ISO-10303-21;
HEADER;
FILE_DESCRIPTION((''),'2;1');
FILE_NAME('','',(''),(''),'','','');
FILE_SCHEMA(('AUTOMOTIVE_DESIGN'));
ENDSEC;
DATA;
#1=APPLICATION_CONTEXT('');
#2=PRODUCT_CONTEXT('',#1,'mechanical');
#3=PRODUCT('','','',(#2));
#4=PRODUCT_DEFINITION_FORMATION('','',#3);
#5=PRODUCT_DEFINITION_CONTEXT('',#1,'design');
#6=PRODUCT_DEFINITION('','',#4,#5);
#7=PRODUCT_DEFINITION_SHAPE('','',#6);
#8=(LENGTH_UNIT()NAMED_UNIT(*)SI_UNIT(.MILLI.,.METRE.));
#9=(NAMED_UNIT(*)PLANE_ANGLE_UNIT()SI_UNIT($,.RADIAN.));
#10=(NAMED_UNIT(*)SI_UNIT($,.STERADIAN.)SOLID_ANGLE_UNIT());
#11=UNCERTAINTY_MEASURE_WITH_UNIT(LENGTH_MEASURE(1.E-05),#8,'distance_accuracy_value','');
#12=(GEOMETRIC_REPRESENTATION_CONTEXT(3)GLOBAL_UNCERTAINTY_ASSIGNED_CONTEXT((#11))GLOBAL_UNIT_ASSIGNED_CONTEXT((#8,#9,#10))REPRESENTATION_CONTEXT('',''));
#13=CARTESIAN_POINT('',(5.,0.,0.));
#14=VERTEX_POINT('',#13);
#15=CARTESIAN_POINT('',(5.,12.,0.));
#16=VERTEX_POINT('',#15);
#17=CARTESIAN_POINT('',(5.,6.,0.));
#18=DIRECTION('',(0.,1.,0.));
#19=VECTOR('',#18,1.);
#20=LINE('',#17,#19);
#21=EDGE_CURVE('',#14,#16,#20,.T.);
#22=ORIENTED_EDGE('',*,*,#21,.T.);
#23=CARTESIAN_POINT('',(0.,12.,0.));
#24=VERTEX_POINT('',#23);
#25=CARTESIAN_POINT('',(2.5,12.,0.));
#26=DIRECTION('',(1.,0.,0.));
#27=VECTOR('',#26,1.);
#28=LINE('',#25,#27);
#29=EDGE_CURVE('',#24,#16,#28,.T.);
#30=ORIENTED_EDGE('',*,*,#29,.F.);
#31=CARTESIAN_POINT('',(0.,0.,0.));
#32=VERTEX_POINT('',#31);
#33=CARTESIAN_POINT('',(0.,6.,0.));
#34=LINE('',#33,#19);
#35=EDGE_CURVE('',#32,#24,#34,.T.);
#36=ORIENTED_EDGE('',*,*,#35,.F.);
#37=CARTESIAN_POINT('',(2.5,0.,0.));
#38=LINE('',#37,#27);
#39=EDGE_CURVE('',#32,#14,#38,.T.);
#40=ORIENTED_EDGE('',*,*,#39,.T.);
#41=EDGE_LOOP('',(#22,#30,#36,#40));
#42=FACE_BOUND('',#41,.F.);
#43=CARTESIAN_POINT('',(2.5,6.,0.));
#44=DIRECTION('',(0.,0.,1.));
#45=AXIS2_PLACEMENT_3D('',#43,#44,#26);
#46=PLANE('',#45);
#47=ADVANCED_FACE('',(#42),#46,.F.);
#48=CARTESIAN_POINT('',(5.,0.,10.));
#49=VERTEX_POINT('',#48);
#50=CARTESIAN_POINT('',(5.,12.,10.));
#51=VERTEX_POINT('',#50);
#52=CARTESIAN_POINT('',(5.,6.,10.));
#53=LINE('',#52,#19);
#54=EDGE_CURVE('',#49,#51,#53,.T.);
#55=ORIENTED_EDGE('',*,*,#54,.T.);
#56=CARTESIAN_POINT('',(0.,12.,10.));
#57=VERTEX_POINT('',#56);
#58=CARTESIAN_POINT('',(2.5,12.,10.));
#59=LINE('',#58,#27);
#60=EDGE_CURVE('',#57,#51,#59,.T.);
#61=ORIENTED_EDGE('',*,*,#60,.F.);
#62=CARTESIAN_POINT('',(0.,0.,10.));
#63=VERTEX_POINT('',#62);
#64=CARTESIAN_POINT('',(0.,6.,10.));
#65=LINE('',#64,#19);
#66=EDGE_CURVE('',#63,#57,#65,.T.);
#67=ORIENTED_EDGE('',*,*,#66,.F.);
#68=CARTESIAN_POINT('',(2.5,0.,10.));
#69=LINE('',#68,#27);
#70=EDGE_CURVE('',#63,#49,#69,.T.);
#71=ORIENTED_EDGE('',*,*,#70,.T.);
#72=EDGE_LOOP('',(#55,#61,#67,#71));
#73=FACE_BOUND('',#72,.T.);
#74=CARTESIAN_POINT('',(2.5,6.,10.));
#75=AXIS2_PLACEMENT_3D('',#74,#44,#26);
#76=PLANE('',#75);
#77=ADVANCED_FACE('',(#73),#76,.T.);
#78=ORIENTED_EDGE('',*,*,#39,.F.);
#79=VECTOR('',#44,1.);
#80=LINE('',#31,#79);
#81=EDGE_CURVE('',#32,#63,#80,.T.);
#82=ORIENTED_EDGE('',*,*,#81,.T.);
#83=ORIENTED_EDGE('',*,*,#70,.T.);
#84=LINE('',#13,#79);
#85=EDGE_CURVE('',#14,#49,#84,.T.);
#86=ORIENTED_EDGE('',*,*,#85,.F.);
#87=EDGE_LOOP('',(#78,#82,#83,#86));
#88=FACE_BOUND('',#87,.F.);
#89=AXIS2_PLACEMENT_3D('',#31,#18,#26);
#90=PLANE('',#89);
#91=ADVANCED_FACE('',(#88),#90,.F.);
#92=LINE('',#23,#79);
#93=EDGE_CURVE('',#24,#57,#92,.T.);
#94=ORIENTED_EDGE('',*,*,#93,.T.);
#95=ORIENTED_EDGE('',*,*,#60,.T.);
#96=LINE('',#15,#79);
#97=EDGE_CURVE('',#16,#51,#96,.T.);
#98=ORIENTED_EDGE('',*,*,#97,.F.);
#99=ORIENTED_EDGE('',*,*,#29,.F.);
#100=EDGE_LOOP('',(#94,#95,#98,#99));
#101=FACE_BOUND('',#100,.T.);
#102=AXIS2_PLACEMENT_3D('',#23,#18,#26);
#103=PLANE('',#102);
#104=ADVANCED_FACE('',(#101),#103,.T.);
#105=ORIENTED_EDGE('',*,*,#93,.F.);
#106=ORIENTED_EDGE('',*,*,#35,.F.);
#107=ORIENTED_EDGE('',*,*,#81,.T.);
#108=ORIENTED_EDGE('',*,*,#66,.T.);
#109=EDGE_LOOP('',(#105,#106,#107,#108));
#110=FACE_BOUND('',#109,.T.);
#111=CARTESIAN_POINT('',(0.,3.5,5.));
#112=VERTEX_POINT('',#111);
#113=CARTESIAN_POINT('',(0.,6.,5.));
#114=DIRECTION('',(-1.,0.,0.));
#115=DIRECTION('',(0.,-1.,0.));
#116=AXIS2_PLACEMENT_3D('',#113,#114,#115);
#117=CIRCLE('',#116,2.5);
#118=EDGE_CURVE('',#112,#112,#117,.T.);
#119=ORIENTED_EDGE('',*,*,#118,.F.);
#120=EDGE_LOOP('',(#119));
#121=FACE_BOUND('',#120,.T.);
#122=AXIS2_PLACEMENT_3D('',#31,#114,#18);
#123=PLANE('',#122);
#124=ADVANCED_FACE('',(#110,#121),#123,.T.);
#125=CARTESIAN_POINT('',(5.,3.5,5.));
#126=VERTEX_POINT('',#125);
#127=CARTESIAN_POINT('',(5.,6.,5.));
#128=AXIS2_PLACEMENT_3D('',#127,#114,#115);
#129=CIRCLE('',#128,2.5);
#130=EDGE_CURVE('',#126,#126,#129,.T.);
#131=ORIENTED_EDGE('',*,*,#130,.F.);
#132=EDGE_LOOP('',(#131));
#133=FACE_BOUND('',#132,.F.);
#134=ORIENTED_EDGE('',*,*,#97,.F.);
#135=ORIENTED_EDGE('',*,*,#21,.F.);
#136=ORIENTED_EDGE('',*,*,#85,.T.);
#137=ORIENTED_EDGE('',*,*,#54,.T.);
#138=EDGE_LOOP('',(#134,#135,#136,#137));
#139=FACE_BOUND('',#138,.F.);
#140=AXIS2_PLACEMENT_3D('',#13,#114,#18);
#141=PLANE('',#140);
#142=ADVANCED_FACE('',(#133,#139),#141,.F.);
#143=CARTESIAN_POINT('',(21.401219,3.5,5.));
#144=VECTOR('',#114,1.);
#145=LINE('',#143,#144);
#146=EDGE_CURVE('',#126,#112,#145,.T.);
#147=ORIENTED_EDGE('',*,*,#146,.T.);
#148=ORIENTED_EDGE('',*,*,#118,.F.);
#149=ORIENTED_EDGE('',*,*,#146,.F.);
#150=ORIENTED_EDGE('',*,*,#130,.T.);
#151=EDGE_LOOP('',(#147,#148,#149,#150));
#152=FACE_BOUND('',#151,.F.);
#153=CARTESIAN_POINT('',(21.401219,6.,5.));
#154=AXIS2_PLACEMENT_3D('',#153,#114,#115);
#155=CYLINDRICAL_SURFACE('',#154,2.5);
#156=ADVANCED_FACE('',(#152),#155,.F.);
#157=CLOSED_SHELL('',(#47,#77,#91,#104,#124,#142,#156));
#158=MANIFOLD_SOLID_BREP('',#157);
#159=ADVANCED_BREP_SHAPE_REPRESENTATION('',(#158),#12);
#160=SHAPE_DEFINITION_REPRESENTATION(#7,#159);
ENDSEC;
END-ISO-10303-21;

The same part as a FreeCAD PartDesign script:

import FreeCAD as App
import Part
import Sketcher
from FreeCAD import Vector

doc = App.newDocument("Part")
body = doc.addObject("PartDesign::Body", "Body")

sketch1 = body.newObject("Sketcher::SketchObject", "Sketch")
sketch1.AttachmentSupport = (doc.getObject("XY_Plane"), [""])
sketch1.MapMode = "FlatFace"
sketch1.addGeometry(Part.LineSegment(Vector(0, 12, 0), Vector(0, 0, 0)), False)
sketch1.addGeometry(Part.LineSegment(Vector(0, 0, 0), Vector(5, 0, 0)), False)
sketch1.addGeometry(Part.LineSegment(Vector(5, 0, 0), Vector(5, 12, 0)), False)
sketch1.addGeometry(Part.LineSegment(Vector(5, 12, 0), Vector(0, 12, 0)), False)
sketch1.addConstraint(Sketcher.Constraint("Coincident", 0, 2, 1, 1))
sketch1.addConstraint(Sketcher.Constraint("Coincident", 1, 2, 2, 1))
sketch1.addConstraint(Sketcher.Constraint("Coincident", 2, 2, 3, 1))
sketch1.addConstraint(Sketcher.Constraint("Coincident", 3, 2, 0, 1))
sketch1.addConstraint(Sketcher.Constraint("Vertical", 0))
sketch1.addConstraint(Sketcher.Constraint("Horizontal", 1))
sketch1.addConstraint(Sketcher.Constraint("Vertical", 2))
sketch1.addConstraint(Sketcher.Constraint("Horizontal", 3))
sketch1.addConstraint(Sketcher.Constraint("Coincident", 0, 2, -1, 1))
sketch1.addConstraint(Sketcher.Constraint("DistanceX", 1, 1, 1, 2, 5.0))
sketch1.addConstraint(Sketcher.Constraint("DistanceY", 0, 2, 0, 1, 12.0))
pad1 = body.newObject("PartDesign::Pad", "Pad")
pad1.Profile = sketch1
pad1.Length = 10

sketch2 = body.newObject("Sketcher::SketchObject", "Sketch001")
sketch2.AttachmentSupport = (doc.getObject("YZ_Plane"), [""])
sketch2.MapMode = "FlatFace"
sketch2.AttachmentOffset = App.Placement(Vector(0, 0, 5), App.Rotation())
sketch2.addGeometry(Part.Circle(Vector(6, 5, 0), Vector(0, 0, 1), 2.5), False)
sketch2.addConstraint(Sketcher.Constraint("Diameter", 0, 5.0))
sketch2.addConstraint(Sketcher.Constraint("DistanceX", -1, 1, 0, 3, 6.0))
sketch2.addConstraint(Sketcher.Constraint("DistanceY", -1, 1, 0, 3, 5.0))
doc.recompute()
hole = body.newObject("PartDesign::Hole", "Hole")
hole.Profile = sketch2
hole.ThreadType = "None"
hole.Diameter = 5
hole.DepthType = "ThroughAll"

doc.recompute()
